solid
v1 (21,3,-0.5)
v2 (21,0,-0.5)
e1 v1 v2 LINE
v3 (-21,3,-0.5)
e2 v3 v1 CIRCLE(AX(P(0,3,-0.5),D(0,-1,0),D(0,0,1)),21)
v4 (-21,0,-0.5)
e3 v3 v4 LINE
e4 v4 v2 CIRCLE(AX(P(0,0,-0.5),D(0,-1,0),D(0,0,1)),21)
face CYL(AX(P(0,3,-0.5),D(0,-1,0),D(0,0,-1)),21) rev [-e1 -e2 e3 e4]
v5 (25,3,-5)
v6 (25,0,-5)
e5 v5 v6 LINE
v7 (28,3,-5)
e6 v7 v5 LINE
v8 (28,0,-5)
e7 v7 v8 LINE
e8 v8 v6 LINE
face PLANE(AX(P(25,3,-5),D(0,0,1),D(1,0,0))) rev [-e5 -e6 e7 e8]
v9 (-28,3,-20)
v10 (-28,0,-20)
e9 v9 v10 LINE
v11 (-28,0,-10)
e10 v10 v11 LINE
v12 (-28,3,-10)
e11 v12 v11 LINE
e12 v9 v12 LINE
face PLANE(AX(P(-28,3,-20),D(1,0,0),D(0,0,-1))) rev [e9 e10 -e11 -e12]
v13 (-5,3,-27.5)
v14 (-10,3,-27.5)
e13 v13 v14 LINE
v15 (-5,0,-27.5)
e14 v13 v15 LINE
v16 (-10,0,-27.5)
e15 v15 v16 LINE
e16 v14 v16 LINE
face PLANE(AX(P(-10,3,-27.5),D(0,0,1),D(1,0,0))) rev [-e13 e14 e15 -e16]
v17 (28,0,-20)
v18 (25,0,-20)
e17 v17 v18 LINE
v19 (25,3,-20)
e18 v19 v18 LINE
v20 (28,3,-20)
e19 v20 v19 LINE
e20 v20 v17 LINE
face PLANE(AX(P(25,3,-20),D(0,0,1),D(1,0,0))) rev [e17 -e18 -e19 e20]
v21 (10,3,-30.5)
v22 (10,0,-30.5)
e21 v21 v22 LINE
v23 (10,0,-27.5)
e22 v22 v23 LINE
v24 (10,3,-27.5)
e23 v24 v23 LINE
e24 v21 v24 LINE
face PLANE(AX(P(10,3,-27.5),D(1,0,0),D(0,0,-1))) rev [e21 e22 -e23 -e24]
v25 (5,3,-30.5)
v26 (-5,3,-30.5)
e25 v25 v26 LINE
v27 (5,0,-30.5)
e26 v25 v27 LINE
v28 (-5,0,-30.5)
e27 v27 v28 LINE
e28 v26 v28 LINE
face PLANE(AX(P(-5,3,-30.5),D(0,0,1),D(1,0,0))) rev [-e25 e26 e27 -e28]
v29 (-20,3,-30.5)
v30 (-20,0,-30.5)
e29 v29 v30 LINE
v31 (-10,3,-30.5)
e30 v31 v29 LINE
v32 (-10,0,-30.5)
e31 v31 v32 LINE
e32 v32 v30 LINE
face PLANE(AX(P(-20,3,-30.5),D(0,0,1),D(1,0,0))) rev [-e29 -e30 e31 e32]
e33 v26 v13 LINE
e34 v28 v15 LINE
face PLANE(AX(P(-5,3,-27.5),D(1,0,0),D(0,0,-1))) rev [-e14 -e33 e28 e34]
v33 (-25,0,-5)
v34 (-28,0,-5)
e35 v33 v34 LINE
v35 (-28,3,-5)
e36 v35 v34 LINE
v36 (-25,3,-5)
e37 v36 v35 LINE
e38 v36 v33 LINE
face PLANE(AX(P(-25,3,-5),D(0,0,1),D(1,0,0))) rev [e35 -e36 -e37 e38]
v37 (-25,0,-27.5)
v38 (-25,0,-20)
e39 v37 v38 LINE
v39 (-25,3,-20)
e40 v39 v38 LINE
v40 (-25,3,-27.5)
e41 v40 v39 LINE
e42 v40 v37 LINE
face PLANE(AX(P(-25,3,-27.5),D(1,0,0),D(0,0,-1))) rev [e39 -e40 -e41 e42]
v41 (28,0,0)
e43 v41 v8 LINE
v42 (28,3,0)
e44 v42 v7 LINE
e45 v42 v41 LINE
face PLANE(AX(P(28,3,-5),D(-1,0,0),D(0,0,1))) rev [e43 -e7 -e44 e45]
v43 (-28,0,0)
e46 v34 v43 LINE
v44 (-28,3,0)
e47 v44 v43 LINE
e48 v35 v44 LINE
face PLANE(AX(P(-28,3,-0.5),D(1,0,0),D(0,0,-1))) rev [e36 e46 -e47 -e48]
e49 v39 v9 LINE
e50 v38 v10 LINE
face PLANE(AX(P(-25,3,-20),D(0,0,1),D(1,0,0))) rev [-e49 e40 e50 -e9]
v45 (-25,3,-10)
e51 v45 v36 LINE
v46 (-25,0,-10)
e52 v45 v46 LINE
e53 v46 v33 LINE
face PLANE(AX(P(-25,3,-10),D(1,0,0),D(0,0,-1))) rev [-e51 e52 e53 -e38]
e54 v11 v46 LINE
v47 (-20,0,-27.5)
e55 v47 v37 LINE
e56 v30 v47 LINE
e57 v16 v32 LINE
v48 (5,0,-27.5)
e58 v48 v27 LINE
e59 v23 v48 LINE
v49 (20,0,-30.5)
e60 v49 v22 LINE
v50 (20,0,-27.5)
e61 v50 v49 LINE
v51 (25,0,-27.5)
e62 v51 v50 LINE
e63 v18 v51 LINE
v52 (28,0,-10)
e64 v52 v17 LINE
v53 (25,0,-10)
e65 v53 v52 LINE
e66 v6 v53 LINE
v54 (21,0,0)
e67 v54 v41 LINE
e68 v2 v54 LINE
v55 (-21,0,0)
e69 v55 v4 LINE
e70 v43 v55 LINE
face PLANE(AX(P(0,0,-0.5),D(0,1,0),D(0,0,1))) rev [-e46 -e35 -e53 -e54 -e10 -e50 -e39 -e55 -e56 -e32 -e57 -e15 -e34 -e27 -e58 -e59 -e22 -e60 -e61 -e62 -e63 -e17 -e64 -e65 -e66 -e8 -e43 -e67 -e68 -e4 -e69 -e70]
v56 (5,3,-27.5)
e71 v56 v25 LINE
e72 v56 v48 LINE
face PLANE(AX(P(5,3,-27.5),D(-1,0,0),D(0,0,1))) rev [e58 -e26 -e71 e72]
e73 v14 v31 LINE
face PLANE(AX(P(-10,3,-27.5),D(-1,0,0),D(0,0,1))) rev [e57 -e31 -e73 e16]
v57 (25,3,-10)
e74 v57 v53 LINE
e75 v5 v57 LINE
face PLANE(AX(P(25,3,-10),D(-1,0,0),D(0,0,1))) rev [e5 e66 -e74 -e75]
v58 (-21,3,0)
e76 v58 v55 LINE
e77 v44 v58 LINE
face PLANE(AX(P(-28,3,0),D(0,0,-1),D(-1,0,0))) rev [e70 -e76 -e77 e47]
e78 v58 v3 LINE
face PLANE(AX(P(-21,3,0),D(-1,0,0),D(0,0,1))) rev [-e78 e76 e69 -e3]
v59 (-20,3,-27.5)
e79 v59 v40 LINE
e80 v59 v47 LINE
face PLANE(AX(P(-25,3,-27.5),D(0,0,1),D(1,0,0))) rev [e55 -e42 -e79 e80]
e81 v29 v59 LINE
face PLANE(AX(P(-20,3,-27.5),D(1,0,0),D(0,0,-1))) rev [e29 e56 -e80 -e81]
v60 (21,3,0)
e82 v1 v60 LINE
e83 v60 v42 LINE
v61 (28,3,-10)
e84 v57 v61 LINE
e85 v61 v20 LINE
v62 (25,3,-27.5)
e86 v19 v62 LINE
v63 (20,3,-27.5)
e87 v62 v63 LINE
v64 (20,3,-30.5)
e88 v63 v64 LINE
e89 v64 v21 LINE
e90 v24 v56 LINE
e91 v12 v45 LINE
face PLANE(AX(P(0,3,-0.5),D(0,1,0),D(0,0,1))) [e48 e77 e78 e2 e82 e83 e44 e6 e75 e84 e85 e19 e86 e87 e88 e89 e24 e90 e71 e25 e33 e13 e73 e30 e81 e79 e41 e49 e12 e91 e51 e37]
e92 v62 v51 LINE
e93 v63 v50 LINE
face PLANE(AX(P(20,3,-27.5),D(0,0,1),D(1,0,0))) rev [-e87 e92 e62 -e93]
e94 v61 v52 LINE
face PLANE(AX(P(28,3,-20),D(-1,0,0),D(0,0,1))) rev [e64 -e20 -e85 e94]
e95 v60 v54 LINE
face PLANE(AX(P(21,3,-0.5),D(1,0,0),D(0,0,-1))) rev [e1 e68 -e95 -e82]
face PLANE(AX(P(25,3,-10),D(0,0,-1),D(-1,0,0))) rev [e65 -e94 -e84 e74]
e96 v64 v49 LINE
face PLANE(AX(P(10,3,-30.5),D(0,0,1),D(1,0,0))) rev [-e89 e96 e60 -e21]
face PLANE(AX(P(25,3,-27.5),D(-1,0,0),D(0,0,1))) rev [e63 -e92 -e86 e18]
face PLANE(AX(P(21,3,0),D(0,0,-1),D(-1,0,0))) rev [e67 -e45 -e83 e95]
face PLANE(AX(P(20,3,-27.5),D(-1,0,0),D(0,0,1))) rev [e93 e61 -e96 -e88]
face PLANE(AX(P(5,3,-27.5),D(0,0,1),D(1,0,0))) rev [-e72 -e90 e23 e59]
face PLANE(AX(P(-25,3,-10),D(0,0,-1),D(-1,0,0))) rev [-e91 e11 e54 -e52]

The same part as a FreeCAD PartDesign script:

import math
import FreeCAD as App
import Part
import Sketcher

V = App.Vector
Q = App.Units.Quantity

doc = App.newDocument("Part")
body = doc.addObject("PartDesign::Body", "Body")

# Sketch on XZ plane
sketch1 = body.newObject("Sketcher::SketchObject", "Sketch")
sketch1.AttachmentSupport = (doc.getObject("XZ_Plane"), [""])
sketch1.MapMode = "FlatFace"
sketch1.addGeometry(Part.LineSegment(V(-20, -27.5, 0), V(-25, -27.5, 0)), False)
sketch1.addGeometry(Part.LineSegment(V(-25, -27.5, 0), V(-25, -20, 0)), False)
sketch1.addGeometry(Part.LineSegment(V(-25, -20, 0), V(-28, -20, 0)), False)
sketch1.addGeometry(Part.LineSegment(V(-28, -20, 0), V(-28, -10, 0)), False)
sketch1.addGeometry(Part.LineSegment(V(-28, -10, 0), V(-25, -10, 0)), False)
sketch1.addGeometry(Part.LineSegment(V(-25, -10, 0), V(-25, -5, 0)), False)
sketch1.addGeometry(Part.LineSegment(V(-25, -5, 0), V(-28, -5, 0)), False)
sketch1.addGeometry(Part.LineSegment(V(-28, -5, 0), V(-28, 0, 0)), False)
sketch1.addGeometry(Part.LineSegment(V(-28, 0, 0), V(-21, 0, 0)), False)
sketch1.addGeometry(Part.LineSegment(V(-21, 0, 0), V(-21, -0.5, 0)), False)
sketch1.addGeometry(Part.ArcOfCircle(Part.Circle(V(0, -0.5, 0), V(0, 0, 1), 21), math.radians(180), math.radians(360)), False)
sketch1.addGeometry(Part.LineSegment(V(21, -0.5, 0), V(21, 0, 0)), False)
sketch1.addGeometry(Part.LineSegment(V(21, 0, 0), V(28, 0, 0)), False)
sketch1.addGeometry(Part.LineSegment(V(28, 0, 0), V(28, -5, 0)), False)
sketch1.addGeometry(Part.LineSegment(V(28, -5, 0), V(25, -5, 0)), False)
sketch1.addGeometry(Part.LineSegment(V(25, -5, 0), V(25, -10, 0)), False)
sketch1.addGeometry(Part.LineSegment(V(25, -10, 0), V(28, -10, 0)), False)
sketch1.addGeometry(Part.LineSegment(V(28, -10, 0), V(28, -20, 0)), False)
sketch1.addGeometry(Part.LineSegment(V(28, -20, 0), V(25, -20, 0)), False)
sketch1.addGeometry(Part.LineSegment(V(25, -20, 0), V(25, -27.5, 0)), False)
sketch1.addGeometry(Part.LineSegment(V(25, -27.5, 0), V(20, -27.5, 0)), False)
sketch1.addGeometry(Part.LineSegment(V(20, -27.5, 0), V(20, -30.5, 0)), False)
sketch1.addGeometry(Part.LineSegment(V(20, -30.5, 0), V(10, -30.5, 0)), False)
sketch1.addGeometry(Part.LineSegment(V(10, -30.5, 0), V(10, -27.5, 0)), False)
sketch1.addGeometry(Part.LineSegment(V(10, -27.5, 0), V(5, -27.5, 0)), False)
sketch1.addGeometry(Part.LineSegment(V(5, -27.5, 0), V(5, -30.5, 0)), False)
sketch1.addGeometry(Part.LineSegment(V(5, -30.5, 0), V(-5, -30.5, 0)), False)
sketch1.addGeometry(Part.LineSegment(V(-5, -30.5, 0), V(-5, -27.5, 0)), False)
sketch1.addGeometry(Part.LineSegment(V(-5, -27.5, 0), V(-10, -27.5, 0)), False)
sketch1.addGeometry(Part.LineSegment(V(-10, -27.5, 0), V(-10, -30.5, 0)), False)
sketch1.addGeometry(Part.LineSegment(V(-10, -30.5, 0), V(-20, -30.5, 0)), False)
sketch1.addGeometry(Part.LineSegment(V(-20, -30.5, 0), V(-20, -27.5, 0)), False)
sketch1.addConstraint(Sketcher.Constraint("Coincident", 0, 2, 1, 1))
sketch1.addConstraint(Sketcher.Constraint("Coincident", 1, 2, 2, 1))
sketch1.addConstraint(Sketcher.Constraint("Coincident", 2, 2, 3, 1))
sketch1.addConstraint(Sketcher.Constraint("Coincident", 3, 2, 4, 1))
sketch1.addConstraint(Sketcher.Constraint("Coincident", 4, 2, 5, 1))
sketch1.addConstraint(Sketcher.Constraint("Coincident", 5, 2, 6, 1))
sketch1.addConstraint(Sketcher.Constraint("Coincident", 6, 2, 7, 1))
sketch1.addConstraint(Sketcher.Constraint("Coincident", 7, 2, 8, 1))
sketch1.addConstraint(Sketcher.Constraint("Coincident", 8, 2, 9, 1))
sketch1.addConstraint(Sketcher.Constraint("Tangent", 9, 2, 10, 1))
sketch1.addConstraint(Sketcher.Constraint("Tangent", 10, 2, 11, 1))
sketch1.addConstraint(Sketcher.Constraint("Coincident", 11, 2, 12, 1))
sketch1.addConstraint(Sketcher.Constraint("Coincident", 12, 2, 13, 1))
sketch1.addConstraint(Sketcher.Constraint("Coincident", 13, 2, 14, 1))
sketch1.addConstraint(Sketcher.Constraint("Coincident", 14, 2, 15, 1))
sketch1.addConstraint(Sketcher.Constraint("Coincident", 15, 2, 16, 1))
sketch1.addConstraint(Sketcher.Constraint("Coincident", 16, 2, 17, 1))
sketch1.addConstraint(Sketcher.Constraint("Coincident", 17, 2, 18, 1))
sketch1.addConstraint(Sketcher.Constraint("Coincident", 18, 2, 19, 1))
sketch1.addConstraint(Sketcher.Constraint("Coincident", 19, 2, 20, 1))
sketch1.addConstraint(Sketcher.Constraint("Coincident", 20, 2, 21, 1))
sketch1.addConstraint(Sketcher.Constraint("Coincident", 21, 2, 22, 1))
sketch1.addConstraint(Sketcher.Constraint("Coincident", 22, 2, 23, 1))
sketch1.addConstraint(Sketcher.Constraint("Coincident", 23, 2, 24, 1))
sketch1.addConstraint(Sketcher.Constraint("Coincident", 24, 2, 25, 1))
sketch1.addConstraint(Sketcher.Constraint("Coincident", 25, 2, 26, 1))
sketch1.addConstraint(Sketcher.Constraint("Coincident", 26, 2, 27, 1))
sketch1.addConstraint(Sketcher.Constraint("Coincident", 27, 2, 28, 1))
sketch1.addConstraint(Sketcher.Constraint("Coincident", 28, 2, 29, 1))
sketch1.addConstraint(Sketcher.Constraint("Coincident", 29, 2, 30, 1))
sketch1.addConstraint(Sketcher.Constraint("Coincident", 30, 2, 31, 1))
sketch1.addConstraint(Sketcher.Constraint("Coincident", 31, 2, 0, 1))
sketch1.addConstraint(Sketcher.Constraint("Horizontal", 0))
sketch1.addConstraint(Sketcher.Constraint("Vertical", 1))
sketch1.addConstraint(Sketcher.Constraint("Horizontal", 2))
sketch1.addConstraint(Sketcher.Constraint("Vertical", 3))
sketch1.addConstraint(Sketcher.Constraint("Horizontal", 4))
sketch1.addConstraint(Sketcher.Constraint("Vertical", 5))
sketch1.addConstraint(Sketcher.Constraint("Horizontal", 6))
sketch1.addConstraint(Sketcher.Constraint("Vertical", 7))
sketch1.addConstraint(Sketcher.Constraint("Horizontal", 8))
sketch1.addConstraint(Sketcher.Constraint("Vertical", 9))
sketch1.addConstraint(Sketcher.Constraint("Vertical", 11))
sketch1.addConstraint(Sketcher.Constraint("Horizontal", 12))
sketch1.addConstraint(Sketcher.Constraint("Vertical", 13))
sketch1.addConstraint(Sketcher.Constraint("Horizontal", 14))
sketch1.addConstraint(Sketcher.Constraint("Vertical", 15))
sketch1.addConstraint(Sketcher.Constraint("Horizontal", 16))
sketch1.addConstraint(Sketcher.Constraint("Vertical", 17))
sketch1.addConstraint(Sketcher.Constraint("Horizontal", 18))
sketch1.addConstraint(Sketcher.Constraint("Vertical", 19))
sketch1.addConstraint(Sketcher.Constraint("Horizontal", 20))
sketch1.addConstraint(Sketcher.Constraint("Vertical", 21))
sketch1.addConstraint(Sketcher.Constraint("Horizontal", 22))
sketch1.addConstraint(Sketcher.Constraint("Vertical", 23))
sketch1.addConstraint(Sketcher.Constraint("Horizontal", 24))
sketch1.addConstraint(Sketcher.Constraint("Vertical", 25))
sketch1.addConstraint(Sketcher.Constraint("Horizontal", 26))
sketch1.addConstraint(Sketcher.Constraint("Vertical", 27))
sketch1.addConstraint(Sketcher.Constraint("Horizontal", 28))
sketch1.addConstraint(Sketcher.Constraint("Vertical", 29))
sketch1.addConstraint(Sketcher.Constraint("Horizontal", 30))
sketch1.addConstraint(Sketcher.Constraint("Vertical", 31))
sketch1.addConstraint(Sketcher.Constraint("Symmetric", 8, 2, 11, 2, -1, 1))
sketch1.addConstraint(Sketcher.Constraint("Symmetric", 7, 2, 12, 2, -2))
sketch1.addConstraint(Sketcher.Constraint("Symmetric", 5, 2, 14, 2, -2))
sketch1.addConstraint(Sketcher.Constraint("Symmetric", 3, 2, 16, 2, -2))
sketch1.addConstraint(Sketcher.Constraint("Symmetric", 1, 2, 18, 2, -2))
sketch1.addConstraint(Sketcher.Constraint("Symmetric", 24, 2, 27, 2, -2))
sketch1.addConstraint(Sketcher.Constraint("Symmetric", 22, 2, 29, 2, -2))
sketch1.addConstraint(Sketcher.Constraint("Symmetric", 20, 2, 31, 2, -2))
sketch1.addConstraint(Sketcher.Constraint("Horizontal", 20, 2, 23, 2))
sketch1.addConstraint(Sketcher.Constraint("Horizontal", 22, 2, 25, 2))
sketch1.addConstraint(Sketcher.Constraint("Vertical", 1, 2, 4, 2))
sketch1.addConstraint(Sketcher.Constraint("Vertical", 3, 2, 6, 2))
sketch1.addConstraint(Sketcher.Constraint("Equal", 20, 24))
sketch1.addConstraint(Sketcher.Constraint("Equal", 22, 26))
sketch1.addConstraint(Sketcher.Constraint("Equal", 30, 3))
sketch1.addConstraint(Sketcher.Constraint("Equal", 28, 5))
sketch1.addConstraint(Sketcher.Constraint("Equal", 5, 7))
sketch1.addConstraint(Sketcher.Constraint("Equal", 18, 21))
sketch1.addConstraint(Sketcher.Constraint("Radius", 10, Q("21 mm")))
sketch1.addConstraint(Sketcher.Constraint("DistanceX", 0, 2, 0, 1, Q("5 mm")))
sketch1.addConstraint(Sketcher.Constraint("DistanceX", 2, 2, 2, 1, Q("3 mm")))
sketch1.addConstraint(Sketcher.Constraint("DistanceX", 8, 1, 8, 2, Q("7 mm")))
sketch1.addConstraint(Sketcher.Constraint("DistanceY", 1, 1, 1, 2, Q("7.5 mm")))
sketch1.addConstraint(Sketcher.Constraint("DistanceY", 9, 2, 9, 1, Q("0.5 mm")))
pad1 = body.newObject("PartDesign::Pad", "Pad")
pad1.Profile = sketch1
pad1.Length = 3
pad1.Reversed = True

doc.recompute()
